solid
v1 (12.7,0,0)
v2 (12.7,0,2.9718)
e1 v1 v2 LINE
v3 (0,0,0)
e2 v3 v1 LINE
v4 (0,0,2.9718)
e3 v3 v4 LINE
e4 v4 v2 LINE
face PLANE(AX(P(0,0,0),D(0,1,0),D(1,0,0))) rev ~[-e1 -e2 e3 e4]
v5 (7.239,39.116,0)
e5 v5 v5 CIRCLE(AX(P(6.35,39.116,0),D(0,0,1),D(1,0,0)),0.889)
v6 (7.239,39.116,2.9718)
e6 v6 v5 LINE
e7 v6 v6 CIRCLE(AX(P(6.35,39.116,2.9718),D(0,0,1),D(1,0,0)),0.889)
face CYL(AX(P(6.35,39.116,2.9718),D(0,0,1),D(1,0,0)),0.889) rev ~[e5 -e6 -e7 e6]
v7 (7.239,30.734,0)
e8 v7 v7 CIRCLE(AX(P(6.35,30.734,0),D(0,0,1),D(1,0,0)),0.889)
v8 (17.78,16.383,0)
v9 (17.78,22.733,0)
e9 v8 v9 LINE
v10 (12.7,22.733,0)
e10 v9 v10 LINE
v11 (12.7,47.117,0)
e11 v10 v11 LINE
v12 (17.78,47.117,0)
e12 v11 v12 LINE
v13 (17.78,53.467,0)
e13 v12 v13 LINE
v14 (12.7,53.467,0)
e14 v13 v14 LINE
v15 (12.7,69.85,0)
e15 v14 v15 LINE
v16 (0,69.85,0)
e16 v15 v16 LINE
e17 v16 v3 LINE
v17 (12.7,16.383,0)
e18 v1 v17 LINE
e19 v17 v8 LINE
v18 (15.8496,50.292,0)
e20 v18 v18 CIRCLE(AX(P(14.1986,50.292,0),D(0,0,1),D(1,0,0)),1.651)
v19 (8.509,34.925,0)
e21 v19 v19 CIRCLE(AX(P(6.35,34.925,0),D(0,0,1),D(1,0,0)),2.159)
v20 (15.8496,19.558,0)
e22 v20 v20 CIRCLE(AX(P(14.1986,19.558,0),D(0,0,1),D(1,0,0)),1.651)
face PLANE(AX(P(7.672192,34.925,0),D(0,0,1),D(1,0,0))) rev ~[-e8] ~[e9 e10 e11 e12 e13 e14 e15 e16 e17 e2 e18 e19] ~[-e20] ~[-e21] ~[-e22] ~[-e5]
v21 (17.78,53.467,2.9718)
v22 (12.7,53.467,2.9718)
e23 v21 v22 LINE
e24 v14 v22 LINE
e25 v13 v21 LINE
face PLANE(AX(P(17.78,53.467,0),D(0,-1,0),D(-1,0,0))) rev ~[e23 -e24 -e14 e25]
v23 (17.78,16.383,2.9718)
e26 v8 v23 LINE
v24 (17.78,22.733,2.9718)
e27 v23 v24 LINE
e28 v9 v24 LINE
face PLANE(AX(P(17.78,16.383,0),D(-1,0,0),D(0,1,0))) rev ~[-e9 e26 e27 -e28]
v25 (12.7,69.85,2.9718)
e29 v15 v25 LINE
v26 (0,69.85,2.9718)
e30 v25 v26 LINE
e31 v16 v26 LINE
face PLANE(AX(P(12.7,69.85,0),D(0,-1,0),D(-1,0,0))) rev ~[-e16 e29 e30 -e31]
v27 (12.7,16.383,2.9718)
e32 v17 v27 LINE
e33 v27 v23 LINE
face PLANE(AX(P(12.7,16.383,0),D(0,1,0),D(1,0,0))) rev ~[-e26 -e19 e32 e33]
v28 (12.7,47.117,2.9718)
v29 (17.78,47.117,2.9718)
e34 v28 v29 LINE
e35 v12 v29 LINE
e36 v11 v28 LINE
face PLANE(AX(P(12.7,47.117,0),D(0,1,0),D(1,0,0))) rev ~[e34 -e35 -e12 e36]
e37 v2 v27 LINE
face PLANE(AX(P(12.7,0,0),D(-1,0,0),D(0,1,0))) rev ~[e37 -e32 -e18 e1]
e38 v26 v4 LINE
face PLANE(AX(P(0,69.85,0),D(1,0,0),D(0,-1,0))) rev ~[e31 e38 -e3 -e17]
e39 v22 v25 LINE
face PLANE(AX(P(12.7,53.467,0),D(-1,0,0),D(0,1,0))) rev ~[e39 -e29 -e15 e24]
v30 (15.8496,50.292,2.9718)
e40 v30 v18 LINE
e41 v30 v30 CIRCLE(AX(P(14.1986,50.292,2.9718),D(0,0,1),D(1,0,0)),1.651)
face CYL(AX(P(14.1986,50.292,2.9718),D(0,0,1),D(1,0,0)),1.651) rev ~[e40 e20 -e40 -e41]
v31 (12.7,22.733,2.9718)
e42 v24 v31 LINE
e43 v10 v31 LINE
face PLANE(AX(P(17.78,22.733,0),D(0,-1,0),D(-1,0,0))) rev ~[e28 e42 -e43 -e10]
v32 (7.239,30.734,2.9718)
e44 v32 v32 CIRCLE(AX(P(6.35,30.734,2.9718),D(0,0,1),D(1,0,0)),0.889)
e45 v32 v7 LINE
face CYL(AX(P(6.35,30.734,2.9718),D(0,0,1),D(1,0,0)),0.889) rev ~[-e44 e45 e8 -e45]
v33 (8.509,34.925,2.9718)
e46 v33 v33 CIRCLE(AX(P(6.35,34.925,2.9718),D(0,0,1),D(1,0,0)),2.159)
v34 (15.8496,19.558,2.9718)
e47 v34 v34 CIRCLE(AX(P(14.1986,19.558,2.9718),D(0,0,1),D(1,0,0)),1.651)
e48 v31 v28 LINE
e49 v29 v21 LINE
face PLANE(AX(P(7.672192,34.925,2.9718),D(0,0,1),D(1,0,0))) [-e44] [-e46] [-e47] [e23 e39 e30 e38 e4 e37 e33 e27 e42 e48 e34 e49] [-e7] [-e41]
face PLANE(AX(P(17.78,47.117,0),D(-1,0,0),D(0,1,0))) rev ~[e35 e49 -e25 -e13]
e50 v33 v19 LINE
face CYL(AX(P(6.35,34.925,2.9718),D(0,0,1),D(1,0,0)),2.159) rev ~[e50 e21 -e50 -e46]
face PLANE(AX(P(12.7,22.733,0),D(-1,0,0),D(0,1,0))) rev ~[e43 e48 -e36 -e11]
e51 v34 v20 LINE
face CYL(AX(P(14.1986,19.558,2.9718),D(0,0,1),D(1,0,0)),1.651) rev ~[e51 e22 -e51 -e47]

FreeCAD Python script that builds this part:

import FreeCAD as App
import Part
import Sketcher
from FreeCAD import Vector
Q = App.Units.Quantity


def add_polygon(sketch, points):
    """Adds a closed chain of lines whose ends are joined by coincident constraints."""
    first, n = sketch.GeometryCount, len(points)
    for a, b in zip(points, points[1:] + points[:1]):
        sketch.addGeometry(Part.LineSegment(App.Vector(*a, 0), App.Vector(*b, 0)), False)
    for i in range(n):
        sketch.addConstraint(Sketcher.Constraint("Coincident", first + i, 2, first + (i + 1) % n, 1))

doc = App.newDocument("Part")
params = doc.addObject("Spreadsheet::Sheet", "Params")
for row, (alias, value) in enumerate([
    ("sketch1_width", "0.5 in"),
    ("sketch1_width2", "0.2 in"),
    ("sketch1_height", "2.75 in"),
    ("sketch1_height2", "0.25 in"),
    ("sketch1_height3", "0.96 in"),
    ("pad1_length", "0.117 in"),
    ("sketch2_diameter", "0.13 in"),
    ("sketch2_diameter2", "0.17 in"),
    ("sketch2_diameter3", "0.07 in"),
    ("pocket1_length", "1 in"),
], start=1):
    params.set(f"A{row}", alias)
    params.set(f"B{row}", "=" + value)
    params.setAlias(f"B{row}", alias)

body = doc.addObject("PartDesign::Body", "Body")

# Sketch on XY plane
sketch1 = body.newObject("Sketcher::SketchObject", "Sketch")
sketch1.AttachmentSupport = (doc.getObject("XY_Plane"), [""])
sketch1.MapMode = "FlatFace"
add_polygon(sketch1, [(0, 69.85), (0, 0), (12.7, 0), (12.7, 16.383), (17.78, 16.383), (17.78, 22.733), (12.7, 22.733), (12.7, 47.117), (17.78, 47.117), (17.78, 53.467), (12.7, 53.467), (12.7, 69.85)])  # lines 0-11
sketch1.addConstraint(Sketcher.Constraint("Vertical", 0))
sketch1.addConstraint(Sketcher.Constraint("Horizontal", 1))
sketch1.addConstraint(Sketcher.Constraint("Vertical", 2))
sketch1.addConstraint(Sketcher.Constraint("Horizontal", 3))
sketch1.addConstraint(Sketcher.Constraint("Vertical", 4))
sketch1.addConstraint(Sketcher.Constraint("Horizontal", 5))
sketch1.addConstraint(Sketcher.Constraint("Vertical", 6))
sketch1.addConstraint(Sketcher.Constraint("Horizontal", 7))
sketch1.addConstraint(Sketcher.Constraint("Vertical", 8))
sketch1.addConstraint(Sketcher.Constraint("Horizontal", 9))
sketch1.addConstraint(Sketcher.Constraint("Vertical", 10))
sketch1.addConstraint(Sketcher.Constraint("Horizontal", 11))
sketch1.addConstraint(Sketcher.Constraint("Coincident", 0, 2, -1, 1))
sketch1.addConstraint(Sketcher.Constraint("Vertical", 2, 2, 5, 2))
sketch1.addConstraint(Sketcher.Constraint("Vertical", 4, 2, 7, 2))
sketch1.addConstraint(Sketcher.Constraint("Vertical", 6, 2, 9, 2))
sketch1.addConstraint(Sketcher.Constraint("Equal", 4, 8))
sketch1.addConstraint(Sketcher.Constraint("Equal", 2, 10))
sketch1.addConstraint(Sketcher.Constraint("DistanceX", 1, 1, 1, 2, Q("0.5 in")))
sketch1.addConstraint(Sketcher.Constraint("DistanceX", 3, 1, 3, 2, Q("0.2 in")))
sketch1.addConstraint(Sketcher.Constraint("DistanceY", 0, 2, 0, 1, Q("2.75 in")))
sketch1.addConstraint(Sketcher.Constraint("DistanceY", 4, 1, 4, 2, Q("0.25 in")))
sketch1.addConstraint(Sketcher.Constraint("DistanceY", 6, 1, 6, 2, Q("0.96 in")))
sketch1.setExpression("Constraints[30]", "Params.sketch1_width")
sketch1.setExpression("Constraints[31]", "Params.sketch1_width2")
sketch1.setExpression("Constraints[32]", "Params.sketch1_height")
sketch1.setExpression("Constraints[33]", "Params.sketch1_height2")
sketch1.setExpression("Constraints[34]", "Params.sketch1_height3")
pad1 = body.newObject("PartDesign::Pad", "Pad")
pad1.Profile = sketch1
pad1.setExpression("Length", "Params.pad1_length")

# Sketch on XY plane
sketch2 = body.newObject("Sketcher::SketchObject", "Sketch001")
sketch2.AttachmentSupport = (doc.getObject("XY_Plane"), [""])
sketch2.MapMode = "FlatFace"
sketch2.AttachmentOffset = App.Placement(Vector(0, 0, 0.117 * 25.4), App.Rotation())
sketch2.addGeometry(Part.Circle(Vector(14.1986, 50.292, 0), Vector(0, 0, 1), 1.651), False)
sketch2.addGeometry(Part.Circle(Vector(14.1986, 19.558, 0), Vector(0, 0, 1), 1.651), False)
sketch2.addGeometry(Part.Circle(Vector(6.35, 34.925, 0), Vector(0, 0, 1), 2.159), False)
sketch2.addGeometry(Part.Circle(Vector(6.35, 39.116, 0), Vector(0, 0, 1), 0.889), False)
sketch2.addGeometry(Part.Circle(Vector(6.35, 30.734, 0), Vector(0, 0, 1), 0.889), False)
sketch2.addConstraint(Sketcher.Constraint("Equal", 0, 1))
sketch2.addConstraint(Sketcher.Constraint("Equal", 3, 4))
sketch2.addConstraint(Sketcher.Constraint("Vertical", 0, 3, 1, 3))
sketch2.addConstraint(Sketcher.Constraint("Vertical", 2, 3, 3, 3))
sketch2.addConstraint(Sketcher.Constraint("Vertical", 3, 3, 4, 3))
sketch2.addConstraint(Sketcher.Constraint("Diameter", 0, Q("0.13 in")))
sketch2.addConstraint(Sketcher.Constraint("Diameter", 2, Q("0.17 in")))
sketch2.addConstraint(Sketcher.Constraint("Diameter", 3, Q("0.07 in")))
sketch2.addConstraint(Sketcher.Constraint("DistanceY", -1, 1, 0, 3, Q("1.98 in")))
sketch2.addConstraint(Sketcher.Constraint("DistanceY", -1, 1, 1, 3, Q("0.77 in")))
sketch2.addConstraint(Sketcher.Constraint("DistanceX", -1, 1, 2, 3, Q("0.25 in")))
sketch2.addConstraint(Sketcher.Constraint("DistanceY", -1, 1, 3, 3, Q("1.54 in")))
sketch2.addConstraint(Sketcher.Constraint("DistanceY", -1, 1, 4, 3, Q("1.21 in")))
sketch2.addConstraint(Sketcher.Constraint("DistanceX", -1, 1, 0, 3, Q("0.559 in")))
sketch2.addConstraint(Sketcher.Constraint("DistanceY", -1, 1, 2, 3, Q("1.375 in")))
sketch2.setExpression("Constraints[5]", "Params.sketch2_diameter")
sketch2.setExpression("Constraints[6]", "Params.sketch2_diameter2")
sketch2.setExpression("Constraints[7]", "Params.sketch2_diameter3")
pocket1 = body.newObject("PartDesign::Pocket", "Pocket")
pocket1.Profile = sketch2
pocket1.setExpression("Length", "Params.pocket1_length")

doc.recompute()
